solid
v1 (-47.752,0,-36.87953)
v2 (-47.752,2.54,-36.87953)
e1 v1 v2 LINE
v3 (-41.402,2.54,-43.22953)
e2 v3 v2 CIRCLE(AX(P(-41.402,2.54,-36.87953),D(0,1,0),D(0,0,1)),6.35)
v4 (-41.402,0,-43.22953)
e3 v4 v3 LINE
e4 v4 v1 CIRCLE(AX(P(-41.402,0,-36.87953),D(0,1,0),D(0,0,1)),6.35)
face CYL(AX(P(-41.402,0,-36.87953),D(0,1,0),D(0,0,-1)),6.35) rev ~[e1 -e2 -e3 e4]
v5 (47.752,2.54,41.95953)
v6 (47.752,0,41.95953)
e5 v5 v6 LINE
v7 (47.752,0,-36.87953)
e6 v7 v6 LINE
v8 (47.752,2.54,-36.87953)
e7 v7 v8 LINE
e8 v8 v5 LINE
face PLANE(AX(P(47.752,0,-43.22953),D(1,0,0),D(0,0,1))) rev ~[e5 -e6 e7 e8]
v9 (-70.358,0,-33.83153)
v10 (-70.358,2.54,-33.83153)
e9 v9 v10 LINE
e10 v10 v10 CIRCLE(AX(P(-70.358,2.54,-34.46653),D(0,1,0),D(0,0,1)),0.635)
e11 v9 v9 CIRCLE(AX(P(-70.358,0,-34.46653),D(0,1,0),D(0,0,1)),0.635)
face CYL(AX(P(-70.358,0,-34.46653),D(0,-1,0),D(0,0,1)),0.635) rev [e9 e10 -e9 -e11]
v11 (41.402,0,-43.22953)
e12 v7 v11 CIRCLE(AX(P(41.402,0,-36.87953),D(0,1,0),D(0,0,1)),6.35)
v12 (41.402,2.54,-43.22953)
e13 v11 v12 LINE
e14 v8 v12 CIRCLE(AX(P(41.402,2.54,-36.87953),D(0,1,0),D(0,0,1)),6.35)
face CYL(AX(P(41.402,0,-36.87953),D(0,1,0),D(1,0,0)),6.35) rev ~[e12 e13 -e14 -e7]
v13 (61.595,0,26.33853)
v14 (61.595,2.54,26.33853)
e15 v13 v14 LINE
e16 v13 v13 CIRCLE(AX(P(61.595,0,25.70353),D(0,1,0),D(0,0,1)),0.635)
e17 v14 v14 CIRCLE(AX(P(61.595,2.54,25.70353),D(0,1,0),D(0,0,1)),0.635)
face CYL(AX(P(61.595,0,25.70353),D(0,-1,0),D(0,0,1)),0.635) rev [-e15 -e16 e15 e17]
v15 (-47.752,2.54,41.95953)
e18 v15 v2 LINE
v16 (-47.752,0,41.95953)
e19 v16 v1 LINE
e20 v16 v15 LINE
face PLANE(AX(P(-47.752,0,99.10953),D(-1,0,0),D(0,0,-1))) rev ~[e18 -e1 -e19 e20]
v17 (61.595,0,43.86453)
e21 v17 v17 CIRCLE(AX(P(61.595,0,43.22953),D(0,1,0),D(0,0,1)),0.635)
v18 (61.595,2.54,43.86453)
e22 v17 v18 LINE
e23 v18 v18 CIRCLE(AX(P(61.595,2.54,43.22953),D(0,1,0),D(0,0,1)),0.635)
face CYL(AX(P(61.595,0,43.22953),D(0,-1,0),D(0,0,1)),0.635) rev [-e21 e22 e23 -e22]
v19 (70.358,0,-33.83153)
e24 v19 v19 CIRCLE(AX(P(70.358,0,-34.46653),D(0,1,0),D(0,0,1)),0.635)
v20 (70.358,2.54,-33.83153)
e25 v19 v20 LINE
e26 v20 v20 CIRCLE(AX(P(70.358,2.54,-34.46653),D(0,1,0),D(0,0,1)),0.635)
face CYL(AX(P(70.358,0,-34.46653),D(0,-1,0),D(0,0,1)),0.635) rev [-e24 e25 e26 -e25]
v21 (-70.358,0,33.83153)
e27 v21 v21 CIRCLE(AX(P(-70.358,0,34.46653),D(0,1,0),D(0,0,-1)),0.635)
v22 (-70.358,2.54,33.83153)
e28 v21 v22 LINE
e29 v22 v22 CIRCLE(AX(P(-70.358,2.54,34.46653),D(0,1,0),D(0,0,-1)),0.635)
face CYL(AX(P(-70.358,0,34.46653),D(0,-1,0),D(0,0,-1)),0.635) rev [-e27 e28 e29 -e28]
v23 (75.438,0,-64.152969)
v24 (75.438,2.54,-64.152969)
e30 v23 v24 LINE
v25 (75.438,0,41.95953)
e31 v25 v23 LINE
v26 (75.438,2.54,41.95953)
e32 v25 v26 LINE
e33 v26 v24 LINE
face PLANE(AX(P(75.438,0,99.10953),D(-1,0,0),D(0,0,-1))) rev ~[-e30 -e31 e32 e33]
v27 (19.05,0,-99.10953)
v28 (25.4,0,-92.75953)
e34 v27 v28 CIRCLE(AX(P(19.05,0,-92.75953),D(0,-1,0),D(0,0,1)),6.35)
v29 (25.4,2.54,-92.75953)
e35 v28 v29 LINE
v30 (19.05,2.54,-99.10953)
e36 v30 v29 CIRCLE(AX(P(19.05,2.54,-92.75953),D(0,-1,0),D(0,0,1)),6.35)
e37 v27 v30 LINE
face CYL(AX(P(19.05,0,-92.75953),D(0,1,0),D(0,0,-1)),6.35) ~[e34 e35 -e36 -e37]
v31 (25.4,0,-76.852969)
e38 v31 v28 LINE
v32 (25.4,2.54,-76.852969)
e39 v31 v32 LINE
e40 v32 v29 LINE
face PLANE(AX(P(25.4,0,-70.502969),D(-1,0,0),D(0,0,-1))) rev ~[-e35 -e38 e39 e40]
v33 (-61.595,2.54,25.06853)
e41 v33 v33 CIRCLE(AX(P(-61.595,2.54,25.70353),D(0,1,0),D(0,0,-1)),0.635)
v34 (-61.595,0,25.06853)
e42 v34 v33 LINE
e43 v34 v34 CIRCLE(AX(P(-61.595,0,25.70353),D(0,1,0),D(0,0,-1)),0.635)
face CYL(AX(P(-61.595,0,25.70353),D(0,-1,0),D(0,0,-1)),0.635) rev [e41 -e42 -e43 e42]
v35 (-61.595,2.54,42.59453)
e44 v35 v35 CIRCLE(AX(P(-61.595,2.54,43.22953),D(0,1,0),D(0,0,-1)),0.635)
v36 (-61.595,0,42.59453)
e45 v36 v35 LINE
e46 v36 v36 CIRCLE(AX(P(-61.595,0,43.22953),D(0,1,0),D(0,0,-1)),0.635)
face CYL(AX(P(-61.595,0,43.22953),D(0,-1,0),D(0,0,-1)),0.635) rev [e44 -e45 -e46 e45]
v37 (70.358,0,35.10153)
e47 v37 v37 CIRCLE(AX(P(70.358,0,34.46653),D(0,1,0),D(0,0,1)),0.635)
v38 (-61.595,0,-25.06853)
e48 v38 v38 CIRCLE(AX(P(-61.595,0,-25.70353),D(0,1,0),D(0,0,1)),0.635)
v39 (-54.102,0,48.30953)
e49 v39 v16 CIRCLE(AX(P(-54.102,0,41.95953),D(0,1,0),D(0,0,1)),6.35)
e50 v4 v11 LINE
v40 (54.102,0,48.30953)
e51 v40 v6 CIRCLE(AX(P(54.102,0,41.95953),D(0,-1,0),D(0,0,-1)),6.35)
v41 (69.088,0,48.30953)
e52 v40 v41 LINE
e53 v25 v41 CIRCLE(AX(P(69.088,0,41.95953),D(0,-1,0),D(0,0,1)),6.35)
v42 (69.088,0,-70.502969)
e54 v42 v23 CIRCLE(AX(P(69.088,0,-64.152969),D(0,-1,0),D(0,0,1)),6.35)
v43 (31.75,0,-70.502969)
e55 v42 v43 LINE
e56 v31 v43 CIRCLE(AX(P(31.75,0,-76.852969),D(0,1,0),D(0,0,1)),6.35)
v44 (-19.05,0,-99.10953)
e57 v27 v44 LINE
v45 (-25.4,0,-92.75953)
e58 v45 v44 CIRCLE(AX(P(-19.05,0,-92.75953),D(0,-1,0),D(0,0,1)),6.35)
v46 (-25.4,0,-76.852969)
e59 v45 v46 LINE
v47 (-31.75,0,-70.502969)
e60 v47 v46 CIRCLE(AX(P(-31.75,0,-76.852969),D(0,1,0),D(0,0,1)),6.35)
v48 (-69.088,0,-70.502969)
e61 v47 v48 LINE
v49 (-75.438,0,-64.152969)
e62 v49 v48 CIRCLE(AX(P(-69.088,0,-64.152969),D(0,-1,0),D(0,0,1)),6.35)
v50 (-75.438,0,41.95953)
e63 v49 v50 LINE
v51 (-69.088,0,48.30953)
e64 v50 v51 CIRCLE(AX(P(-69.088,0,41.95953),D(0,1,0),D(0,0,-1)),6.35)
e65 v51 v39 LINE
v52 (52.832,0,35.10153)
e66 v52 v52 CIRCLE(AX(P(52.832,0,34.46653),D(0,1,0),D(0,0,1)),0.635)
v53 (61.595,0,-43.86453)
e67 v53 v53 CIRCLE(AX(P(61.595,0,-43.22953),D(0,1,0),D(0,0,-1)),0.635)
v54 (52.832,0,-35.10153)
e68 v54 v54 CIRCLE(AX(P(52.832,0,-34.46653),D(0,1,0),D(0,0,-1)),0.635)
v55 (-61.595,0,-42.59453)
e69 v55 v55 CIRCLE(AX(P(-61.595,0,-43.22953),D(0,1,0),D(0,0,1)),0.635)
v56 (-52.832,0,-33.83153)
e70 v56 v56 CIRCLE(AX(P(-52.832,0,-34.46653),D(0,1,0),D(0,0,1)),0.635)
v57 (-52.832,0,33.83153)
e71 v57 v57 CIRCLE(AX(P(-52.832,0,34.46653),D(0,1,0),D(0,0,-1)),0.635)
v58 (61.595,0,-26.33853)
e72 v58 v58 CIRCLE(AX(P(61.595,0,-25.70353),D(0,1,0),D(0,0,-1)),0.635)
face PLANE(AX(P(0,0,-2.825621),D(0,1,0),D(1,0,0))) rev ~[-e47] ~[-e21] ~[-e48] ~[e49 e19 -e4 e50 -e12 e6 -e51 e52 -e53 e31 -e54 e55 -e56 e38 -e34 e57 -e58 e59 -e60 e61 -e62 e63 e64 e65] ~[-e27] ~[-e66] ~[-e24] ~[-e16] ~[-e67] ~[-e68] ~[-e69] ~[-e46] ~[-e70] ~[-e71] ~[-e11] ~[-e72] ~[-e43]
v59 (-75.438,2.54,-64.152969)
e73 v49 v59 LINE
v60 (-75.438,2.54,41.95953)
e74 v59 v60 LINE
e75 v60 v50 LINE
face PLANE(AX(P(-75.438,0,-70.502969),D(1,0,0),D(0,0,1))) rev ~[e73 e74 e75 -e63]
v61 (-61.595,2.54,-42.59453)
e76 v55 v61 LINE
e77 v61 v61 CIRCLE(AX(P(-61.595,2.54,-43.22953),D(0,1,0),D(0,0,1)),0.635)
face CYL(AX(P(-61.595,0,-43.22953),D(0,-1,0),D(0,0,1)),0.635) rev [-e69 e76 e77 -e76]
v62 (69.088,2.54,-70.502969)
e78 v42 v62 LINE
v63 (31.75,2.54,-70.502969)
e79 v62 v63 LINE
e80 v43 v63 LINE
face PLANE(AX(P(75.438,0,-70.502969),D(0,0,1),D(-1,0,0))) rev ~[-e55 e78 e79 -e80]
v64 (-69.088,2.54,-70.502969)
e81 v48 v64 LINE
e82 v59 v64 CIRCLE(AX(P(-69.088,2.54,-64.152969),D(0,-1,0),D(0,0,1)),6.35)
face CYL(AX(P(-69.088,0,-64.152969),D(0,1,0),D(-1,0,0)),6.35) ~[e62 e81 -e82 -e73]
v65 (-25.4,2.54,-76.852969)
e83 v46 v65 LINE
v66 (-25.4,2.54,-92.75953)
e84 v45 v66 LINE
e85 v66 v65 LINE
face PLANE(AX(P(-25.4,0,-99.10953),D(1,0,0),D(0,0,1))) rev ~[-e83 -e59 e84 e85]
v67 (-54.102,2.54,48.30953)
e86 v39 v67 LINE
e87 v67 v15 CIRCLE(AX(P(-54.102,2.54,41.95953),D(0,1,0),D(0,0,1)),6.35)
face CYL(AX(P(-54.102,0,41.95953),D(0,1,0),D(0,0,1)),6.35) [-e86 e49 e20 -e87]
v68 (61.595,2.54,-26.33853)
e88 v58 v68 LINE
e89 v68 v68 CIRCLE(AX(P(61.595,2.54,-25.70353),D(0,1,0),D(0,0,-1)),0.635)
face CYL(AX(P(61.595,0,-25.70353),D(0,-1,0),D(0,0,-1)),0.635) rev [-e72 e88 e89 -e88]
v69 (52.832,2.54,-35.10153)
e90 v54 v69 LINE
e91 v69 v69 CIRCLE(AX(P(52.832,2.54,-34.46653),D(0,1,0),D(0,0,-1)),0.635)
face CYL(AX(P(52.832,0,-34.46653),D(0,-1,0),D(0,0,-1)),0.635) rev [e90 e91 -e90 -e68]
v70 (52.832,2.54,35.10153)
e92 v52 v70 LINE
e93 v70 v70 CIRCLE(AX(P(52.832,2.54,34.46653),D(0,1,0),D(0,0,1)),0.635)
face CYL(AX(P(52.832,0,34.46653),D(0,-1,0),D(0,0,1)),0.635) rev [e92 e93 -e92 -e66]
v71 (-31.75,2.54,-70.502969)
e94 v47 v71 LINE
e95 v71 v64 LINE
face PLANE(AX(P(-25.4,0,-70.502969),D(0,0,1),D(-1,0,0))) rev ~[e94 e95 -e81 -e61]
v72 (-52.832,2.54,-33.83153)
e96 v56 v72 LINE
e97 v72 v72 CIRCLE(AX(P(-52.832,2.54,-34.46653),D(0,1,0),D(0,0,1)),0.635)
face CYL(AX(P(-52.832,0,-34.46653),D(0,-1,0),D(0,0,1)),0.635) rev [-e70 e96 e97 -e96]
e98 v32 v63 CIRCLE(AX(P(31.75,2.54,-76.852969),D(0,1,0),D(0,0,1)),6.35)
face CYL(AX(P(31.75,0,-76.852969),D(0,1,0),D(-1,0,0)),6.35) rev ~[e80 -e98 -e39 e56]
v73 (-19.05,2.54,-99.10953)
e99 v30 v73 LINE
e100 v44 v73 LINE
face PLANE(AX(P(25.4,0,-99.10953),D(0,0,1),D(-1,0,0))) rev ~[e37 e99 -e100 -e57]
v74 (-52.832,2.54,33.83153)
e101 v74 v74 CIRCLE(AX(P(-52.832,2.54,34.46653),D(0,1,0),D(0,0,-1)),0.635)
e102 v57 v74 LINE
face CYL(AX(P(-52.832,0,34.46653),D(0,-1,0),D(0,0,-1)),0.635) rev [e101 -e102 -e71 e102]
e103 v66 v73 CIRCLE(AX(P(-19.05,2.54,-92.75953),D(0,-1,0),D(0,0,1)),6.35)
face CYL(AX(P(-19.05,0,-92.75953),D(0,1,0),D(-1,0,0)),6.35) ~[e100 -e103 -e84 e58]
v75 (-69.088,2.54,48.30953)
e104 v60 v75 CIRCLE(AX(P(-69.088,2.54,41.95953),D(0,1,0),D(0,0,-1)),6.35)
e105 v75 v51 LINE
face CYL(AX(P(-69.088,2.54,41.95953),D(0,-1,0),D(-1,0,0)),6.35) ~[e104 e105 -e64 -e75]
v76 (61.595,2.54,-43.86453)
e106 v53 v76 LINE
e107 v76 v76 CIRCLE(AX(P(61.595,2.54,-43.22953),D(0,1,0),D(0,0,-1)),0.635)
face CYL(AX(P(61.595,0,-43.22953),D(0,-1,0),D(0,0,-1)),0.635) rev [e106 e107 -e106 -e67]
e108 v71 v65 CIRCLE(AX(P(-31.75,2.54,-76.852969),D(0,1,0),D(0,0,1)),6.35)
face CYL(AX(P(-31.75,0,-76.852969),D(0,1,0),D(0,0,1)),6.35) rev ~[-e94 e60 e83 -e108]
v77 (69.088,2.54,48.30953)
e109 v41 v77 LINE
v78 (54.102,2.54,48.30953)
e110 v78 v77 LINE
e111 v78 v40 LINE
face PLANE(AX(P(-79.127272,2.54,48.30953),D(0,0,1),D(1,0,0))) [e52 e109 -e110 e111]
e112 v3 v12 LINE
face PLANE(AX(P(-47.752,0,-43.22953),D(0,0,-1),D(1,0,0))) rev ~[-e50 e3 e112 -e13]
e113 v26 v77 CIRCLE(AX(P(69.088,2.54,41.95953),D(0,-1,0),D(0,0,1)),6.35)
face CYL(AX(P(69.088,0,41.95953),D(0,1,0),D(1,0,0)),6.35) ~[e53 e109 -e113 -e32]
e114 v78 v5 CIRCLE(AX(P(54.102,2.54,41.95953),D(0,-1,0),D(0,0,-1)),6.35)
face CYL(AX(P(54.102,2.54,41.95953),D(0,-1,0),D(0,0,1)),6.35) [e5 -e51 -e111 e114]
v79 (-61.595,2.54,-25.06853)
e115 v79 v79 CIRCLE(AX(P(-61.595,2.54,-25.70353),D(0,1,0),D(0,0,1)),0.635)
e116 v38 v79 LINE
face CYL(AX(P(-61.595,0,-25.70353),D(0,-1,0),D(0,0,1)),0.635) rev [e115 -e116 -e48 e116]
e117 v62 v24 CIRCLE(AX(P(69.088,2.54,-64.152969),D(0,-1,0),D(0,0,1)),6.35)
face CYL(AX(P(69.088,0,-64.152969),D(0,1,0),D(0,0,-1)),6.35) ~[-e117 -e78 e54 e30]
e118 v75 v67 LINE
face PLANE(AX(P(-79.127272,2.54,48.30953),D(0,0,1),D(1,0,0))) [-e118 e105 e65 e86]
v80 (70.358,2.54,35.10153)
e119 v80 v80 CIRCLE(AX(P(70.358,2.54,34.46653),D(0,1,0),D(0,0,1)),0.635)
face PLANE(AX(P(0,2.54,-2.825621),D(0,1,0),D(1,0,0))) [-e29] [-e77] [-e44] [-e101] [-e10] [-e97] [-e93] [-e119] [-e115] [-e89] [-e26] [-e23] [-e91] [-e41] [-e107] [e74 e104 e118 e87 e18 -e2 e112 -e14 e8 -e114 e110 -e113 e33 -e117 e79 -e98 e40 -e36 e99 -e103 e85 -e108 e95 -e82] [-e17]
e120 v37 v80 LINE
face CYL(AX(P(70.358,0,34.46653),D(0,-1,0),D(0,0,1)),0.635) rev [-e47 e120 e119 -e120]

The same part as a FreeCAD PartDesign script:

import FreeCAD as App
import Part
import Sketcher
from FreeCAD import Vector
Q = App.Units.Quantity


def edges_at(feature, points):
    """Names of the edges that pass closest to the given points."""
    edges = feature.Shape.Edges
    near = lambda p: min(range(len(edges)), key=lambda i: edges[i].distToShape(Part.Vertex(*p))[0])
    return sorted({f"Edge{near(p) + 1}" for p in points})

doc = App.newDocument("Part")
body = doc.addObject("PartDesign::Body", "Body")

sketch1 = body.newObject("Sketcher::SketchObject", "Sketch")
sketch1.AttachmentSupport = (doc.getObject("XZ_Plane"), [""])
sketch1.MapMode = "FlatFace"
sketch1.addGeometry([
    Part.LineSegment(Vector(-75.4, 99.1, 0), Vector(-47.8, 99.1, 0)),
    Part.LineSegment(Vector(-47.8, 99.1, 0), Vector(-47.8, -43.2, 0)),
    Part.LineSegment(Vector(-47.8, -43.2, 0), Vector(47.8, -43.2, 0)),
    Part.LineSegment(Vector(47.8, -43.2, 0), Vector(47.8, 99.1, 0)),
    Part.LineSegment(Vector(47.8, 99.1, 0), Vector(75.4, 99.1, 0)),
    Part.LineSegment(Vector(75.4, 99.1, 0), Vector(75.4, -70.5, 0)),
    Part.LineSegment(Vector(75.4, -70.5, 0), Vector(25.4, -70.5, 0)),
    Part.LineSegment(Vector(25.4, -70.5, 0), Vector(25.4, -99.1, 0)),
    Part.LineSegment(Vector(25.4, -99.1, 0), Vector(-25.4, -99.1, 0)),
    Part.LineSegment(Vector(-25.4, -99.1, 0), Vector(-25.4, -70.5, 0)),
    Part.LineSegment(Vector(-25.4, -70.5, 0), Vector(-75.4, -70.5, 0)),
    Part.LineSegment(Vector(-75.4, -70.5, 0), Vector(-75.4, 99.1, 0)),
    Part.Circle(Vector(-61.6, 43.2, 0), Vector(0, 0, 1), 0.6),
    Part.Circle(Vector(-70.4, 34.5, 0), Vector(0, 0, 1), 0.6),
    Part.Circle(Vector(-52.8, 34.5, 0), Vector(0, 0, 1), 0.6),
    Part.Circle(Vector(-61.6, 25.7, 0), Vector(0, 0, 1), 0.6),
    Part.Circle(Vector(52.8, 34.5, 0), Vector(0, 0, 1), 0.6),
    Part.Circle(Vector(61.6, 43.2, 0), Vector(0, 0, 1), 0.6),
    Part.Circle(Vector(70.4, 34.5, 0), Vector(0, 0, 1), 0.6),
    Part.Circle(Vector(61.6, 25.7, 0), Vector(0, 0, 1), 0.6),
    Part.Circle(Vector(-61.6, -25.7, 0), Vector(0, 0, 1), 0.6),
    Part.Circle(Vector(-70.4, -34.5, 0), Vector(0, 0, 1), 0.6),
    Part.Circle(Vector(-61.6, -43.2, 0), Vector(0, 0, 1), 0.6),
    Part.Circle(Vector(-52.8, -34.5, 0), Vector(0, 0, 1), 0.6),
    Part.Circle(Vector(61.6, -25.7, 0), Vector(0, 0, 1), 0.6),
    Part.Circle(Vector(52.8, -34.5, 0), Vector(0, 0, 1), 0.6),
    Part.Circle(Vector(70.4, -34.5, 0), Vector(0, 0, 1), 0.6),
    Part.Circle(Vector(61.6, -43.2, 0), Vector(0, 0, 1), 0.6),
], False)
sketch1.addConstraint([
    Sketcher.Constraint("Coincident", 0, 2, 1, 1),
    Sketcher.Constraint("Coincident", 1, 2, 2, 1),
    Sketcher.Constraint("Coincident", 2, 2, 3, 1),
    Sketcher.Constraint("Coincident", 3, 2, 4, 1),
    Sketcher.Constraint("Coincident", 4, 2, 5, 1),
    Sketcher.Constraint("Coincident", 5, 2, 6, 1),
    Sketcher.Constraint("Coincident", 6, 2, 7, 1),
    Sketcher.Constraint("Coincident", 7, 2, 8, 1),
    Sketcher.Constraint("Coincident", 8, 2, 9, 1),
    Sketcher.Constraint("Coincident", 9, 2, 10, 1),
    Sketcher.Constraint("Coincident", 10, 2, 11, 1),
    Sketcher.Constraint("Coincident", 11, 2, 0, 1),
    Sketcher.Constraint("Horizontal", 0),
    Sketcher.Constraint("Vertical", 1),
    Sketcher.Constraint("Horizontal", 2),
    Sketcher.Constraint("Vertical", 3),
    Sketcher.Constraint("Horizontal", 4),
    Sketcher.Constraint("Vertical", 5),
    Sketcher.Constraint("Horizontal", 6),
    Sketcher.Constraint("Vertical", 7),
    Sketcher.Constraint("Horizontal", 8),
    Sketcher.Constraint("Vertical", 9),
    Sketcher.Constraint("Horizontal", 10),
    Sketcher.Constraint("Vertical", 11),
    Sketcher.Constraint("Equal", 12, 13),
    Sketcher.Constraint("Equal", 13, 14),
    Sketcher.Constraint("Equal", 14, 15),
    Sketcher.Constraint("Equal", 15, 16),
    Sketcher.Constraint("Equal", 16, 17),
    Sketcher.Constraint("Equal", 17, 18),
    Sketcher.Constraint("Equal", 18, 19),
    Sketcher.Constraint("Equal", 19, 20),
    Sketcher.Constraint("Equal", 20, 21),
    Sketcher.Constraint("Equal", 21, 22),
    Sketcher.Constraint("Equal", 22, 23),
    Sketcher.Constraint("Equal", 23, 24),
    Sketcher.Constraint("Equal", 24, 25),
    Sketcher.Constraint("Equal", 25, 26),
    Sketcher.Constraint("Equal", 26, 27),
    Sketcher.Constraint("Symmetric", 19, 3, 20, 3, -1, 1),
    Sketcher.Constraint("Symmetric", 18, 3, 21, 3, -1, 1),
    Sketcher.Constraint("Symmetric", 17, 3, 22, 3, -1, 1),
    Sketcher.Constraint("Symmetric", 16, 3, 23, 3, -1, 1),
    Sketcher.Constraint("Symmetric", 15, 3, 24, 3, -1, 1),
    Sketcher.Constraint("Symmetric", 14, 3, 25, 3, -1, 1),
    Sketcher.Constraint("Symmetric", 13, 3, 26, 3, -1, 1),
    Sketcher.Constraint("Symmetric", 12, 3, 27, 3, -1, 1),
    Sketcher.Constraint("Symmetric", 14, 3, 16, 3, -2),
    Sketcher.Constraint("Symmetric", 12, 3, 17, 3, -2),
    Sketcher.Constraint("Symmetric", 13, 3, 18, 3, -2),
    Sketcher.Constraint("Symmetric", 15, 3, 19, 3, -2),
    Sketcher.Constraint("Symmetric", 0, 2, 3, 2, -2),
    Sketcher.Constraint("Symmetric", 6, 2, 9, 2, -2),
    Sketcher.Constraint("Horizontal", 13, 3, 14, 3),
    Sketcher.Constraint("Horizontal", 27, 3, 1, 2),
    Sketcher.Constraint("Vertical", 12, 3, 15, 3),
    Sketcher.Constraint("Equal", 0, 4),
    Sketcher.Constraint("Diameter", 12, Q("0.05 in")),
    Sketcher.Constraint("DistanceX", 8, 2, 8, 1, Q("2 in")),
    Sketcher.Constraint("DistanceX", 0, 1, 0, 2, Q("1.09 in")),
    Sketcher.Constraint("DistanceX", 2, 1, 2, 2, Q("3.76 in")),
    Sketcher.Constraint("DistanceY", 12, 3, 0, 2, Q("2.2 in")),
    Sketcher.Constraint("DistanceX", 14, 3, 0, 2, Q("0.2 in")),
    Sketcher.Constraint("DistanceX", 18, 3, 4, 2, Q("0.2 in")),
    Sketcher.Constraint("DistanceY", 7, 2, 2, 2, Q("2.2 in")),
    Sketcher.Constraint("DistanceY", 15, 3, 12, 3, Q("0.69 in")),
    Sketcher.Constraint("DistanceX", 12, 3, 17, 3, Q("4.85 in")),
    Sketcher.Constraint("DistanceY", 1, 2, 1, 1, Q("5.6039 in")),
    Sketcher.Constraint("DistanceY", 13, 3, 12, 3, Q("0.345 in")),
    Sketcher.Constraint("DistanceY", 5, 2, 5, 1, Q("169.612499 mm")),
])
pad1 = body.newObject("PartDesign::Pad", "Pad")
pad1.Profile = sketch1
pad1.Length = Q("0.1 in")
pad1.Reversed = True

sketch2 = body.newObject("Sketcher::SketchObject", "Sketch001")
sketch2.AttachmentSupport = (doc.getObject("XZ_Plane"), [""])
sketch2.MapMode = "FlatFace"
sketch2.AttachmentOffset = App.Placement(Vector(0, 0, -0.1 * 25.4), App.Rotation())
sketch2.addGeometry([
    Part.LineSegment(Vector(-79, 48, 0), Vector(-79, 175, 0)),
    Part.LineSegment(Vector(-79, 175, 0), Vector(86, 175, 0)),
    Part.LineSegment(Vector(86, 175, 0), Vector(86, 48, 0)),
    Part.LineSegment(Vector(86, 48, 0), Vector(-79, 48, 0)),
], False)
sketch2.addConstraint([
    Sketcher.Constraint("Coincident", 0, 2, 1, 1),
    Sketcher.Constraint("Coincident", 1, 2, 2, 1),
    Sketcher.Constraint("Coincident", 2, 2, 3, 1),
    Sketcher.Constraint("Coincident", 3, 2, 0, 1),
    Sketcher.Constraint("Vertical", 0),
    Sketcher.Constraint("Horizontal", 1),
    Sketcher.Constraint("Vertical", 2),
    Sketcher.Constraint("Horizontal", 3),
    Sketcher.Constraint("DistanceY", 0, 1, 0, 2, Q("5 in")),
    Sketcher.Constraint("DistanceX", 1, 1, 1, 2, Q("165.279863 mm")),
    Sketcher.Constraint("DistanceY", -1, 1, 0, 2, Q("175.30953 mm")),
    Sketcher.Constraint("DistanceX", -1, 1, 1, 2, Q("86.152591 mm")),
])
pocket1 = body.newObject("PartDesign::Pocket", "Pocket")
pocket1.Profile = sketch2
pocket1.Type = "ThroughAll"
pocket1.Reversed = True
doc.recompute()

fillet = body.newObject("PartDesign::Fillet", "Fillet")
fillet.Base = (pocket1, edges_at(pocket1, [
    (75.438, 1.27, 48.31),
    (-75.438, 1.27, 48.31),
    (-47.752, 1.27, 48.31),
    (47.752, 1.27, 48.31),
    (-75.438, 1.27, -70.503),
    (-25.4, 1.27, -70.503),
    (-25.4, 1.27, -99.11),
    (25.4, 1.27, -99.11),
    (25.4, 1.27, -70.503),
    (75.438, 1.27, -70.503),
    (47.752, 1.27, -43.23),
    (-47.752, 1.27, -43.23),
]))
fillet.Radius = Q("0.25 in")

doc.recompute()
